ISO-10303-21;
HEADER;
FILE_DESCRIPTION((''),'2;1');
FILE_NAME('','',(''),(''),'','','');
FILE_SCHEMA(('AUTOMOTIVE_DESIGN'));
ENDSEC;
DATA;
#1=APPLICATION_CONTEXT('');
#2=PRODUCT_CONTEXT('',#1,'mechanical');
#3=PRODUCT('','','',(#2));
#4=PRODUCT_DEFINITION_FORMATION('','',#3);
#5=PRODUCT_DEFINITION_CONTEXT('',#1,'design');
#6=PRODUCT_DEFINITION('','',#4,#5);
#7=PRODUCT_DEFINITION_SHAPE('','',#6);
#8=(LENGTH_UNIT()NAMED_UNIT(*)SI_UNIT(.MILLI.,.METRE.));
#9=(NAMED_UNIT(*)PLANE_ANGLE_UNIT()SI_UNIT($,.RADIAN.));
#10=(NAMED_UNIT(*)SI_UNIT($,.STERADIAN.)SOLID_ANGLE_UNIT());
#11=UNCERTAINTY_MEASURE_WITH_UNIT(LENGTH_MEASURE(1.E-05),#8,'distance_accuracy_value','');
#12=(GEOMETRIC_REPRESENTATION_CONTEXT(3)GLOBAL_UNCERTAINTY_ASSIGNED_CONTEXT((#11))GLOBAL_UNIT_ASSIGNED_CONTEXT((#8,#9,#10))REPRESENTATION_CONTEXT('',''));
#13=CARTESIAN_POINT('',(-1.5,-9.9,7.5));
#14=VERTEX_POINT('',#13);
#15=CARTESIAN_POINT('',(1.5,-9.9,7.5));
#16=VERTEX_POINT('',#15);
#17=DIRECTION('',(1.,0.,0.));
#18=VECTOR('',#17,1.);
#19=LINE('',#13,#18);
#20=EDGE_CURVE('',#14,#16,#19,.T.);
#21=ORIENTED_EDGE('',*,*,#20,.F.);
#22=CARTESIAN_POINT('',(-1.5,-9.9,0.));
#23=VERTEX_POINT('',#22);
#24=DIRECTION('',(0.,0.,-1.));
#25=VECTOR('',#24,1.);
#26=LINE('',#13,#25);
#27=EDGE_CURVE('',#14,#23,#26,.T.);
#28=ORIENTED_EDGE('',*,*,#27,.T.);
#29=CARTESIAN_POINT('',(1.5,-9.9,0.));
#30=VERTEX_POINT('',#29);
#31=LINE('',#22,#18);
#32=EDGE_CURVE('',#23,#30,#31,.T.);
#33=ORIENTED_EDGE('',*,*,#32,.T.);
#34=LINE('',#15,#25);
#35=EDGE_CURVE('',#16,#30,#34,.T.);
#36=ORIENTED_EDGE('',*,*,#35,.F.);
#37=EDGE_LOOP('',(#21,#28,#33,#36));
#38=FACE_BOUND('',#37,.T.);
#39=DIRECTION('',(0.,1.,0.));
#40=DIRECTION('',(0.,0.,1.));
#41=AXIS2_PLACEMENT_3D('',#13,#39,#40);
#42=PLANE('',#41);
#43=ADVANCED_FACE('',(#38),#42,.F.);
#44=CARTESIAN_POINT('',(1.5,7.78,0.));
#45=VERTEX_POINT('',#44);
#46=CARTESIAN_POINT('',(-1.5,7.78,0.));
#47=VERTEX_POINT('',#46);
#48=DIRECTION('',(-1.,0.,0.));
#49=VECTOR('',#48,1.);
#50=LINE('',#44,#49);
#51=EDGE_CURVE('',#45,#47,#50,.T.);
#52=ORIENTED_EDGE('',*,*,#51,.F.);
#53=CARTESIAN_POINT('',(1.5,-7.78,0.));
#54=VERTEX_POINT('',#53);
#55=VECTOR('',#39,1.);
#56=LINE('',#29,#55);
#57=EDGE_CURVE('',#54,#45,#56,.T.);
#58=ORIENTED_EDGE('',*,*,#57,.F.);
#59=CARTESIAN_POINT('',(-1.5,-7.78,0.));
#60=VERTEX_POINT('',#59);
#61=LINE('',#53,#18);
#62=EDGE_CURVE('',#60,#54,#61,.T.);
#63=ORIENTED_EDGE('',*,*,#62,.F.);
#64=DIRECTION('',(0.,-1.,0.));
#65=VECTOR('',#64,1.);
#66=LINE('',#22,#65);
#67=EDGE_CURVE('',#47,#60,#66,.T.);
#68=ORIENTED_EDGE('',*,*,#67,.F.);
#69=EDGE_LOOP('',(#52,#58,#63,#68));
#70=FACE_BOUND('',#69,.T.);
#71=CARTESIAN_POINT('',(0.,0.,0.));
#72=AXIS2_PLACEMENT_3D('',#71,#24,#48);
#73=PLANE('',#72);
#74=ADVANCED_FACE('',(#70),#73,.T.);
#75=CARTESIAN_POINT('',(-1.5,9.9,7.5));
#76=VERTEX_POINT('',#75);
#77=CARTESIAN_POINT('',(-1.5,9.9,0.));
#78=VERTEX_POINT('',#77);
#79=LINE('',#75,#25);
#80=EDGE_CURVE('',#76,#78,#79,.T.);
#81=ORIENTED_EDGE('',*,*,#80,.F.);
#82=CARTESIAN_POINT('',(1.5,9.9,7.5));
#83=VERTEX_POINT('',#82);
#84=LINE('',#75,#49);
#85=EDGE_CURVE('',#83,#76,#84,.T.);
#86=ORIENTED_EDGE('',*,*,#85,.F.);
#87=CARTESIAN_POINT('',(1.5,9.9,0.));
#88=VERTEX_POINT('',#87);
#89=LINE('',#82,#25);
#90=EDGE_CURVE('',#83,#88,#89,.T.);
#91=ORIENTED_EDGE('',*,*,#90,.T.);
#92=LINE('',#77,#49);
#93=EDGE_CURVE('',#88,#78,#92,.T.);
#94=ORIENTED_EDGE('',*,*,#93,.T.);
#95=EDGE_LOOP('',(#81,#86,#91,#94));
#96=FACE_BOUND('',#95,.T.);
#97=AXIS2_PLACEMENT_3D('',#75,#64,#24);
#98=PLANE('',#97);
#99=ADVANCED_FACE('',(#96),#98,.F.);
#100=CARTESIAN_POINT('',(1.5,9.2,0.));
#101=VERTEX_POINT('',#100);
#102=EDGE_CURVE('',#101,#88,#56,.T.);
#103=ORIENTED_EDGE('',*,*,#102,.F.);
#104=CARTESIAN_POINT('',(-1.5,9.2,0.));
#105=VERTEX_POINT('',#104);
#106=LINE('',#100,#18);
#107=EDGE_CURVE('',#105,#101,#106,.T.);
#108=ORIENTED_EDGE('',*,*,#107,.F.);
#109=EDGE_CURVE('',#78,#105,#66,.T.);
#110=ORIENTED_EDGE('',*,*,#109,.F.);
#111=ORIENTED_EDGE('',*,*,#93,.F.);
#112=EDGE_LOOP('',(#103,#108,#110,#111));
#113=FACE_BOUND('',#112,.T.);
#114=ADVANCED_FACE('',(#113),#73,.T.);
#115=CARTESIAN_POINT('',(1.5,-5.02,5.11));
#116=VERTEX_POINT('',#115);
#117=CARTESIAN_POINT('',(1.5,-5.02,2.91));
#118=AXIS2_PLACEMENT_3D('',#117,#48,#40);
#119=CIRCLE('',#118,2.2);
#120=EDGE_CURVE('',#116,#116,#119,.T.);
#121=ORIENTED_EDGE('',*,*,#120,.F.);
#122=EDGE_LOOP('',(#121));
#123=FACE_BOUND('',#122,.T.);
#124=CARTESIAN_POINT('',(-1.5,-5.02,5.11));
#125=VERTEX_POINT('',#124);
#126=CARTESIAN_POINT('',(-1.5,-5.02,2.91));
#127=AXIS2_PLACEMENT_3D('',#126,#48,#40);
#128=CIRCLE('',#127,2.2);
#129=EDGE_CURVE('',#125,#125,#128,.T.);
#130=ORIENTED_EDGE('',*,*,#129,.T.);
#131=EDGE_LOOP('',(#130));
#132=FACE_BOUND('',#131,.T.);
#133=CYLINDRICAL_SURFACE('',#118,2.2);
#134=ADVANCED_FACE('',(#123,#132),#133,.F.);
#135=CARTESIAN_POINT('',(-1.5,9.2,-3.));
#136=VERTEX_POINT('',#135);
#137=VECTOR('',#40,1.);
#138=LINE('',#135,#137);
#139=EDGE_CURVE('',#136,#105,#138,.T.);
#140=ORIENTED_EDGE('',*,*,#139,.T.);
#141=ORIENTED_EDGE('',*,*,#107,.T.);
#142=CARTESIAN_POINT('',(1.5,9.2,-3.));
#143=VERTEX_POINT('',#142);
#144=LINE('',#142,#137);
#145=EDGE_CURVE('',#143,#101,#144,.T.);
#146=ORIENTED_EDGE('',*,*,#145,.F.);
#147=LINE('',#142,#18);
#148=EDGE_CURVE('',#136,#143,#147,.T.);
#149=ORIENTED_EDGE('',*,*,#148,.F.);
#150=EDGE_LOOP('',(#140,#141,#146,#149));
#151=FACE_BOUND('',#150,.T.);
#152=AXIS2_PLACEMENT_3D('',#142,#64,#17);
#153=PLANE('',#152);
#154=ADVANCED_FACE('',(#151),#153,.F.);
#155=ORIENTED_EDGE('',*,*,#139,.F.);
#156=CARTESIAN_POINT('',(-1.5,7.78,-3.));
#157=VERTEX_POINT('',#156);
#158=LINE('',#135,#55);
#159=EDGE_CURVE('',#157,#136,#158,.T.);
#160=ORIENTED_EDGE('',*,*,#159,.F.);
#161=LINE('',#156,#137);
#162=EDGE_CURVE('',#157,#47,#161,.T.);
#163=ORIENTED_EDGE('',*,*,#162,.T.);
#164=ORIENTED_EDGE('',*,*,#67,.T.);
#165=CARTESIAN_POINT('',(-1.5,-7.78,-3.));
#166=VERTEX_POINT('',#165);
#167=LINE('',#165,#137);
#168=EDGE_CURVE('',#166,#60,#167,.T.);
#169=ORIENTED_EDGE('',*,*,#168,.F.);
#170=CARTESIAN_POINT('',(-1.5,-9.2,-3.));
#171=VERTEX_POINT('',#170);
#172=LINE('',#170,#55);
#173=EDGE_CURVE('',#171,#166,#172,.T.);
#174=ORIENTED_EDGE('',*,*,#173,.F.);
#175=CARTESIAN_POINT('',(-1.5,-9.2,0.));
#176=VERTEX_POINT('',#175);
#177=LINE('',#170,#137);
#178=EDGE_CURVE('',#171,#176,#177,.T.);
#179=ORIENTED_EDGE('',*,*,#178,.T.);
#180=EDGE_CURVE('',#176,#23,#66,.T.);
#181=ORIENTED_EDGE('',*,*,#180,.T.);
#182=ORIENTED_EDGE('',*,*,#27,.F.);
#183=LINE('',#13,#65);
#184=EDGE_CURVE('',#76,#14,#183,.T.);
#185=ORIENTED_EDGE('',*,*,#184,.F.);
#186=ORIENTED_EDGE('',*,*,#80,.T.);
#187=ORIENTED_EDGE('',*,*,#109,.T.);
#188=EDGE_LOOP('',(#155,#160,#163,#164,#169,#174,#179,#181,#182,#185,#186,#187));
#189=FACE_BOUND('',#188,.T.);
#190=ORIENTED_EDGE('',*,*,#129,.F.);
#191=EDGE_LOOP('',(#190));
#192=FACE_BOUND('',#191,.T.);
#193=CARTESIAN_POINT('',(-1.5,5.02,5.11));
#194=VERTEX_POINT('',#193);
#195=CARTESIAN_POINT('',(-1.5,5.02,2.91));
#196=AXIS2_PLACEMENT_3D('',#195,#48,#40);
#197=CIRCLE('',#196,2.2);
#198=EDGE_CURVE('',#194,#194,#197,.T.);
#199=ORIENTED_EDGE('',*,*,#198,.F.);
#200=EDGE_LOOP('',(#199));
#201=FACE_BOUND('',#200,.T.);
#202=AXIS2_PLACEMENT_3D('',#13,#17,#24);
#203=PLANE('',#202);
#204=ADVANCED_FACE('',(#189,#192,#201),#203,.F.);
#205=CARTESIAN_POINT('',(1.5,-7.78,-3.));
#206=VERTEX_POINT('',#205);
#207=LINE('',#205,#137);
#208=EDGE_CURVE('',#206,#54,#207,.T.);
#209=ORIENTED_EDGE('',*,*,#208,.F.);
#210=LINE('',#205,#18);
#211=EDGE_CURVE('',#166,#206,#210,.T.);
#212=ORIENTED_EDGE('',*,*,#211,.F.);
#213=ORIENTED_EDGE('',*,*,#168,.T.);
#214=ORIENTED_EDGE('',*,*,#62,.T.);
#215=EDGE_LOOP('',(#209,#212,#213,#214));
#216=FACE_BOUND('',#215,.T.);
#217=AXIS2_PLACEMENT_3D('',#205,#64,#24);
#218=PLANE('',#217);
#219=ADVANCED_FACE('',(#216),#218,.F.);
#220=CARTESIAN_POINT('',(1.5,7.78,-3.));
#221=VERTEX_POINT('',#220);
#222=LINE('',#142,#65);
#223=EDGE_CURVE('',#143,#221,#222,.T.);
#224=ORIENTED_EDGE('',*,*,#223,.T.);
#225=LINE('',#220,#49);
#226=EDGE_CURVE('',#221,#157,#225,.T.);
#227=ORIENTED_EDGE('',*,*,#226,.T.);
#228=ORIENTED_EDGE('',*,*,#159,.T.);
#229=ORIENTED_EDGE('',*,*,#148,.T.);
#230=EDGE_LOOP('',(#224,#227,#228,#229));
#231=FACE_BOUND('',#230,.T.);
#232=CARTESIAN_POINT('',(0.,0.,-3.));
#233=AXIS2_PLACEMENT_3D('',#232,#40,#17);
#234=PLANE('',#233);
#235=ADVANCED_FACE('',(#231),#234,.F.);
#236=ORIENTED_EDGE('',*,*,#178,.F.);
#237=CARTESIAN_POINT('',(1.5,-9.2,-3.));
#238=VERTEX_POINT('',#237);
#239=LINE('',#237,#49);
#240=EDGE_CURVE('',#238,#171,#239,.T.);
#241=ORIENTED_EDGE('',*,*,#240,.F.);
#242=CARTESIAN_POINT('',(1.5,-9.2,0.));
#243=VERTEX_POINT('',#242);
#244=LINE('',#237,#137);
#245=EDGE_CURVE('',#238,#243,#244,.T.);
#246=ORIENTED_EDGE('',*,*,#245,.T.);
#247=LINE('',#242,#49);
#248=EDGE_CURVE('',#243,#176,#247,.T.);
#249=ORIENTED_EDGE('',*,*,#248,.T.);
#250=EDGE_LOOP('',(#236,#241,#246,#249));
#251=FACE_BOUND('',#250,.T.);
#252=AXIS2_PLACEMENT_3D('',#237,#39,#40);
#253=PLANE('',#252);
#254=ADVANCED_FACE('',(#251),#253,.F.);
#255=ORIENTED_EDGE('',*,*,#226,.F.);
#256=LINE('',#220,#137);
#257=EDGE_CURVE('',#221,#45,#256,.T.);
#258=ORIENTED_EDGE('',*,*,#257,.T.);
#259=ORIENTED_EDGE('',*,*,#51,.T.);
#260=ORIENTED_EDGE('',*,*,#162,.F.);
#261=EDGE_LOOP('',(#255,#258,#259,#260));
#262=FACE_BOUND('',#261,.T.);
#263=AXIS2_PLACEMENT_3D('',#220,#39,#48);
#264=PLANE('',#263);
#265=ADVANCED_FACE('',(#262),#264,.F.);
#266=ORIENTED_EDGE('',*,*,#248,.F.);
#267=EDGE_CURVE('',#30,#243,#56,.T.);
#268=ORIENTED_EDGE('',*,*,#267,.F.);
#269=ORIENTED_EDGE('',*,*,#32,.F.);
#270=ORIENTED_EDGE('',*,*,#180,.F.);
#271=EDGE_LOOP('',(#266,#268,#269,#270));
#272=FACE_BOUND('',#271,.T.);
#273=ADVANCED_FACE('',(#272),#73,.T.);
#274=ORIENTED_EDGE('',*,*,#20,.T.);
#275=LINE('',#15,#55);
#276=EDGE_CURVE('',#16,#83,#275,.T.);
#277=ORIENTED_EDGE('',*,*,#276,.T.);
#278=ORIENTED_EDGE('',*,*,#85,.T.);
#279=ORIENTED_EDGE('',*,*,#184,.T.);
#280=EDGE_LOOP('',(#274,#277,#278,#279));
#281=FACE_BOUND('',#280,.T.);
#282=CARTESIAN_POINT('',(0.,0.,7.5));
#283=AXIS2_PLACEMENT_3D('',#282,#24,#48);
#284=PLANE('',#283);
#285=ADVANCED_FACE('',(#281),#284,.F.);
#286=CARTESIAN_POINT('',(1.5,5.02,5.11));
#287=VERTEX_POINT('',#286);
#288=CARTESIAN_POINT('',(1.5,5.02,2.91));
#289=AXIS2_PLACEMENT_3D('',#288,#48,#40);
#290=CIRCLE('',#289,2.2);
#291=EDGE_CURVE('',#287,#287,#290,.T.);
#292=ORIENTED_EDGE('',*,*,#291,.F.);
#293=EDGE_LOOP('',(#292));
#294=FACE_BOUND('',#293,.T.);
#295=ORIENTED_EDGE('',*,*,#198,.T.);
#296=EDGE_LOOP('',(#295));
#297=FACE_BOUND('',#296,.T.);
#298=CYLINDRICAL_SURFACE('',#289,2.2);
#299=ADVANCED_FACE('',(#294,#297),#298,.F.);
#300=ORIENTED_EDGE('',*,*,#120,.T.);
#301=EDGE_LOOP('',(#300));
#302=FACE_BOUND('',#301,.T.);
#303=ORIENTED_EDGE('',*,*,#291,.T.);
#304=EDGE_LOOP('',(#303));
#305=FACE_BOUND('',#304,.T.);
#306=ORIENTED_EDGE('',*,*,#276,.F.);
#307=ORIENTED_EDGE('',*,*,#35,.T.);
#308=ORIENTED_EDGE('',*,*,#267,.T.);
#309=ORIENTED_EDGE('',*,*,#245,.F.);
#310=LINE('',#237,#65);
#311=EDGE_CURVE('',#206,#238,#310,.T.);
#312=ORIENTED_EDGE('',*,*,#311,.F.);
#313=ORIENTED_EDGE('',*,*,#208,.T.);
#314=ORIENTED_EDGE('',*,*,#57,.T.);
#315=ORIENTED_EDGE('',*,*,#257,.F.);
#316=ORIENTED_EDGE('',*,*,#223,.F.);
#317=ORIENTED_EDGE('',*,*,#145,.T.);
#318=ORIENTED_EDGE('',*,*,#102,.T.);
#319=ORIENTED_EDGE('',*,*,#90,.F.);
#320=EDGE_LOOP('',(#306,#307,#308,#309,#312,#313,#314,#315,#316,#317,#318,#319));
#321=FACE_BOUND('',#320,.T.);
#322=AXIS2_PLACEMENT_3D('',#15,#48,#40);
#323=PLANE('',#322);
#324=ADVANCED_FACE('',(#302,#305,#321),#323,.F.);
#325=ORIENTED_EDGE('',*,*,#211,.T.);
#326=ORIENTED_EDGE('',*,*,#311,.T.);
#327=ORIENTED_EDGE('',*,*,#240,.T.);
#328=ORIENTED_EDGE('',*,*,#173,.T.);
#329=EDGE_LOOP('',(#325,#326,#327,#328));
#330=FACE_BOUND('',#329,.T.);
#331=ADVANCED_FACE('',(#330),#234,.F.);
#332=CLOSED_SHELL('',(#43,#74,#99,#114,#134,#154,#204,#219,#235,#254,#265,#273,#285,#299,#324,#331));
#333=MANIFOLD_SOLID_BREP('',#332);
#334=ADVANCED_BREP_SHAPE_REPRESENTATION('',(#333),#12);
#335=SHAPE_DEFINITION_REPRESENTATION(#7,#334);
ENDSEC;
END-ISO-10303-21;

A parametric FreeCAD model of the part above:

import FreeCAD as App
import Part
import Sketcher

V = App.Vector
Q = App.Units.Quantity


def add_polygon(sketch, points):
    """Adds a closed chain of lines whose ends are joined by coincident constraints."""
    first, n = sketch.GeometryCount, len(points)
    for a, b in zip(points, points[1:] + points[:1]):
        sketch.addGeometry(Part.LineSegment(App.Vector(*a, 0), App.Vector(*b, 0)), False)
    for i in range(n):
        sketch.addConstraint(Sketcher.Constraint("Coincident", first + i, 2, first + (i + 1) % n, 1))

doc = App.newDocument("Part")
params = doc.addObject("Spreadsheet::Sheet", "Params")
for row, (alias, value) in enumerate([
    ("sketch1_width", "3 mm"),
    ("sketch1_height", "19.8 mm"),
    ("pad1_length", "7.5 mm"),
    ("sketch2_width", "3 mm"),
    ("sketch2_height", "1.42 mm"),
    ("pad2_length", "3 mm"),
    ("sketch3_diameter", "4.4 mm"),
    ("pocket1_length", "3 mm"),
], start=1):
    params.set(f"A{row}", alias)
    params.set(f"B{row}", "=" + value)
    params.setAlias(f"B{row}", alias)

body = doc.addObject("PartDesign::Body", "Body")

# Sketch on XY plane
sketch1 = doc.addObject("Sketcher::SketchObject", "Sketch")
body.addObject(sketch1)
sketch1.AttachmentSupport = (doc.XY_Plane, [""])
sketch1.MapMode = "FlatFace"
add_polygon(sketch1, [(-1.5, 9.9), (-1.5, -9.9), (1.5, -9.9), (1.5, 9.9)])  # lines 0-3
sketch1.addConstraint([
    Sketcher.Constraint("Vertical", 0),
    Sketcher.Constraint("Horizontal", 1),
    Sketcher.Constraint("Vertical", 2),
    Sketcher.Constraint("Horizontal", 3),
    Sketcher.Constraint("Symmetric", 0, 2, 2, 2, -1, 1),
    Sketcher.Constraint("DistanceX", 1, 1, 1, 2, Q("3 mm")),
    Sketcher.Constraint("DistanceY", 0, 2, 0, 1, Q("19.8 mm")),
])
sketch1.setExpression("Constraints[9]", "Params.sketch1_width")
sketch1.setExpression("Constraints[10]", "Params.sketch1_height")
pad1 = doc.addObject("PartDesign::Pad", "Pad")
body.addObject(pad1)
pad1.Profile = sketch1
pad1.setExpression("Length", "Params.pad1_length")

# Sketch on XY plane
sketch2 = doc.addObject("Sketcher::SketchObject", "Sketch001")
body.addObject(sketch2)
sketch2.AttachmentSupport = (doc.XY_Plane, [""])
sketch2.MapMode = "FlatFace"
add_polygon(sketch2, [(1.5, 9.2), (1.5, 7.8), (-1.5, 7.8), (-1.5, 9.2)])  # lines 0-3
add_polygon(sketch2, [(1.5, -7.8), (1.5, -9.2), (-1.5, -9.2), (-1.5, -7.8)])  # lines 4-7
sketch2.addConstraint([
    Sketcher.Constraint("Vertical", 0),
    Sketcher.Constraint("Horizontal", 1),
    Sketcher.Constraint("Vertical", 2),
    Sketcher.Constraint("Horizontal", 3),
    Sketcher.Constraint("Vertical", 4),
    Sketcher.Constraint("Horizontal", 5),
    Sketcher.Constraint("Vertical", 6),
    Sketcher.Constraint("Horizontal", 7),
    Sketcher.Constraint("Symmetric", 2, 2, 4, 2, -1, 1),
    Sketcher.Constraint("Symmetric", 0, 2, 6, 2, -1, 1),
    Sketcher.Constraint("Vertical", 3, 2, 4, 2),
    Sketcher.Constraint("DistanceX", 1, 2, 1, 1, Q("3 mm")),
    Sketcher.Constraint("DistanceY", 0, 2, 0, 1, Q("1.42 mm")),
    Sketcher.Constraint("DistanceY", -1, 1, 2, 2, Q("9.2 mm")),
])
sketch2.setExpression("Constraints[19]", "Params.sketch2_width")
sketch2.setExpression("Constraints[20]", "Params.sketch2_height")
pad2 = doc.addObject("PartDesign::Pad", "Pad001")
body.addObject(pad2)
pad2.Profile = sketch2
pad2.setExpression("Length", "Params.pad2_length")
pad2.Reversed = True

# Sketch on YZ plane
sketch3 = doc.addObject("Sketcher::SketchObject", "Sketch002")
body.addObject(sketch3)
sketch3.AttachmentSupport = (doc.YZ_Plane, [""])
sketch3.MapMode = "FlatFace"
sketch3.AttachmentOffset = App.Placement(V(0, 0, -1.5), App.Rotation())
sketch3.addGeometry([
    Part.Circle(V(-5, 2.9, 0), V(0, 0, 1), 2.2),
    Part.Circle(V(5, 2.9, 0), V(0, 0, 1), 2.2),
], False)
sketch3.addConstraint([
    Sketcher.Constraint("Equal", 0, 1),
    Sketcher.Constraint("Symmetric", 0, 3, 1, 3, -2),
    Sketcher.Constraint("Diameter", 0, Q("4.4 mm")),
    Sketcher.Constraint("DistanceX", 0, 3, -1, 1, Q("5.02 mm")),
    Sketcher.Constraint("DistanceY", -1, 1, 0, 3, Q("2.91 mm")),
])
sketch3.setExpression("Constraints[2]", "Params.sketch3_diameter")
pocket1 = doc.addObject("PartDesign::Pocket", "Pocket")
body.addObject(pocket1)
pocket1.Profile = sketch3
pocket1.setExpression("Length", "Params.pocket1_length")
pocket1.Reversed = True

doc.recompute()
